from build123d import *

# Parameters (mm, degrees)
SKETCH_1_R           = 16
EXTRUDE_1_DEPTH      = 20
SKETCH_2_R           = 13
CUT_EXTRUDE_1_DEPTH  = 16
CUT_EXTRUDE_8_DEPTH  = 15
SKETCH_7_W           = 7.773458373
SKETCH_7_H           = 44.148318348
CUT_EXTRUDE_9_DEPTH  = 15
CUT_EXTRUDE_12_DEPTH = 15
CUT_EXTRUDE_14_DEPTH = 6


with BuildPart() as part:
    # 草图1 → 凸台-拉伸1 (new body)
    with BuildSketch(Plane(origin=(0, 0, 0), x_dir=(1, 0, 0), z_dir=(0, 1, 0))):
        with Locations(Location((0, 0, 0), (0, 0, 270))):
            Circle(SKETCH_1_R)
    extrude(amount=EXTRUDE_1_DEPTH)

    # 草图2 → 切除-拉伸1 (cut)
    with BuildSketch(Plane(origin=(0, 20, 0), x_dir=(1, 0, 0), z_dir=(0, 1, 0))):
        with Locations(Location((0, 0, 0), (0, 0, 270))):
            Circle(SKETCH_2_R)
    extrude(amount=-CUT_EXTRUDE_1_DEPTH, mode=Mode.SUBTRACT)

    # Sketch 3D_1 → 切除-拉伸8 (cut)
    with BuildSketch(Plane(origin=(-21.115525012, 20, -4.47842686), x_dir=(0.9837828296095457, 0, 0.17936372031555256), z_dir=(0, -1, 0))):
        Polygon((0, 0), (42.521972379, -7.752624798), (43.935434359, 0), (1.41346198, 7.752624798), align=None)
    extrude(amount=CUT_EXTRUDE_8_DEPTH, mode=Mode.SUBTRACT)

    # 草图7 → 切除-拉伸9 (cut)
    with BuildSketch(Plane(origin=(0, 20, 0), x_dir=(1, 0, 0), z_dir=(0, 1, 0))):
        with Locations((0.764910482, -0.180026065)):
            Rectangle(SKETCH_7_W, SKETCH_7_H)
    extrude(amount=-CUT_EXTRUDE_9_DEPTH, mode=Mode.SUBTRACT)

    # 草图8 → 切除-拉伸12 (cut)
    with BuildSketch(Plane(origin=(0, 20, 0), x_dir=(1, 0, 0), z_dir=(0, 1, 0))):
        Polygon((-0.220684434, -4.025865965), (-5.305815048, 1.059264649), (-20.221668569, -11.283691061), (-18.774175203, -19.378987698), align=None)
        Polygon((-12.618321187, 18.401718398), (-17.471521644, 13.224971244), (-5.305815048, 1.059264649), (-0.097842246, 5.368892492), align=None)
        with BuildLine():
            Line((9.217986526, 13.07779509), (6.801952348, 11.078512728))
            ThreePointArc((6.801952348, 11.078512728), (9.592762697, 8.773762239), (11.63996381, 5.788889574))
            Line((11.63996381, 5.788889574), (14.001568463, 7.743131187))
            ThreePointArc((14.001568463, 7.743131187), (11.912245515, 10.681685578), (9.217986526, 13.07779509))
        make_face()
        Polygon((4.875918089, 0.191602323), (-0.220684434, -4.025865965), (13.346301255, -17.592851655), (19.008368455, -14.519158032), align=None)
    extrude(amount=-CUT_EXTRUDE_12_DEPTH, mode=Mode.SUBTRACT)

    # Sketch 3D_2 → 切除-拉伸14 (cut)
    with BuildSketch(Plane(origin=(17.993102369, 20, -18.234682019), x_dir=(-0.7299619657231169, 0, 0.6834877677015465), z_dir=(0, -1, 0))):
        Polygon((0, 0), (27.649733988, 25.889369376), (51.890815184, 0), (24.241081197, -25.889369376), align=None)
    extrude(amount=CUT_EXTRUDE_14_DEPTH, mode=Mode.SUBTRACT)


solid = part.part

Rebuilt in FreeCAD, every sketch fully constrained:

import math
import FreeCAD as App
import Part
import Sketcher

V = App.Vector


def add_polygon(sketch, points):
    """Adds a closed chain of lines whose ends are joined by coincident constraints."""
    first, n = sketch.GeometryCount, len(points)
    for a, b in zip(points, points[1:] + points[:1]):
        sketch.addGeometry(Part.LineSegment(App.Vector(*a, 0), App.Vector(*b, 0)), False)
    for i in range(n):
        sketch.addConstraint(Sketcher.Constraint("Coincident", first + i, 2, first + (i + 1) % n, 1))

doc = App.newDocument("Part")
body = doc.addObject("PartDesign::Body", "Body")

# Sketch on XZ plane
sketch1 = doc.addObject("Sketcher::SketchObject", "Sketch")
body.addObject(sketch1)
sketch1.AttachmentSupport = (doc.XZ_Plane, [""])
sketch1.MapMode = "FlatFace"
sketch1.addGeometry(Part.Circle(V(0, 0, 0), V(0, 0, 1), 16), False)
sketch1.addConstraint(Sketcher.Constraint("Coincident", 0, 3, -1, 1))
sketch1.addConstraint(Sketcher.Constraint("Diameter", 0, 32.0))
pad1 = doc.addObject("PartDesign::Pad", "Pad")
body.addObject(pad1)
pad1.Profile = sketch1
pad1.Length = 20
pad1.Reversed = True

# Sketch on XZ plane
sketch2 = doc.addObject("Sketcher::SketchObject", "Sketch001")
body.addObject(sketch2)
sketch2.AttachmentSupport = (doc.XZ_Plane, [""])
sketch2.MapMode = "FlatFace"
sketch2.AttachmentOffset = App.Placement(V(0, 0, -20), App.Rotation())
sketch2.addGeometry(Part.Circle(V(0, 0, 0), V(0, 0, 1), 13), False)
sketch2.addConstraint(Sketcher.Constraint("Coincident", 0, 3, -1, 1))
sketch2.addConstraint(Sketcher.Constraint("Diameter", 0, 26.0))
pocket1 = doc.addObject("PartDesign::Pocket", "Pocket")
body.addObject(pocket1)
pocket1.Profile = sketch2
pocket1.Length = 16
pocket1.Reversed = True

# Sketch on XZ plane
sketch3 = doc.addObject("Sketcher::SketchObject", "Sketch002")
body.addObject(sketch3)
sketch3.AttachmentSupport = (doc.XZ_Plane, [""])
sketch3.MapMode = "FlatFace"
sketch3.AttachmentOffset = App.Placement(V(0, 0, -20), App.Rotation())
add_polygon(sketch3, [(-21, -4), (22, -4), (22, 3), (-21, 3)])  # lines 0-3
sketch3.addConstraint(Sketcher.Constraint("Horizontal", 0))
sketch3.addConstraint(Sketcher.Constraint("Vertical", 1))
sketch3.addConstraint(Sketcher.Constraint("Horizontal", 2))
sketch3.addConstraint(Sketcher.Constraint("Vertical", 3))
sketch3.addConstraint(Sketcher.Constraint("DistanceX", -1, 1, 0, 2, 22.107401))
sketch3.addConstraint(Sketcher.Constraint("DistanceX", 0, 1, 0, 2, 43.222926))
sketch3.addConstraint(Sketcher.Constraint("DistanceY", 1, 1, 1, 2, 7.880423))
sketch3.addConstraint(Sketcher.Constraint("DistanceY", 0, 2, -1, 1, 4.478427))
pocket2 = doc.addObject("PartDesign::Pocket", "Pocket001")
body.addObject(pocket2)
pocket2.Profile = sketch3
pocket2.Length = 15
pocket2.Reversed = True

# Sketch on XZ plane
sketch4 = doc.addObject("Sketcher::SketchObject", "Sketch003")
body.addObject(sketch4)
sketch4.AttachmentSupport = (doc.XZ_Plane, [""])
sketch4.MapMode = "FlatFace"
sketch4.AttachmentOffset = App.Placement(V(0, 0, -20), App.Rotation())
add_polygon(sketch4, [(-3, -22), (-3, 22), (5, 22), (5, -22)])  # lines 0-3
sketch4.addConstraint(Sketcher.Constraint("Vertical", 0))
sketch4.addConstraint(Sketcher.Constraint("Horizontal", 1))
sketch4.addConstraint(Sketcher.Constraint("Vertical", 2))
sketch4.addConstraint(Sketcher.Constraint("Horizontal", 3))
sketch4.addConstraint(Sketcher.Constraint("DistanceX", 1, 1, 1, 2, 7.773458))
sketch4.addConstraint(Sketcher.Constraint("DistanceY", 0, 1, 0, 2, 44.148318))
sketch4.addConstraint(Sketcher.Constraint("DistanceX", 0, 2, -1, 1, 3.121819))
sketch4.addConstraint(Sketcher.Constraint("DistanceY", -1, 1, 0, 2, 22.254185))
pocket3 = doc.addObject("PartDesign::Pocket", "Pocket002")
body.addObject(pocket3)
pocket3.Profile = sketch4
pocket3.Length = 15
pocket3.Reversed = True

# Sketch on XZ plane
sketch5 = doc.addObject("Sketcher::SketchObject", "Sketch004")
body.addObject(sketch5)
sketch5.AttachmentSupport = (doc.XZ_Plane, [""])
sketch5.MapMode = "FlatFace"
sketch5.AttachmentOffset = App.Placement(V(0, 0, -20), App.Rotation())
add_polygon(sketch5, [(-0.220684, 4.025866), (-5.305815, -1.059265), (-20.221669, 11.283691), (-18.774175, 19.378988)])  # lines 0-3
add_polygon(sketch5, [(-12.618321, -18.401718), (-17.471522, -13.224971), (-5.305815, -1.059265), (-0.097842, -5.368892)])  # lines 4-7
sketch5.addGeometry(Part.LineSegment(V(9.217987, -13.077795, 0), V(6.801952, -11.078513, 0)), False)  # 8
sketch5.addGeometry(Part.ArcOfCircle(Part.Circle(V(0, 0, 0), V(0, 0, 1), 13), math.radians(-58.451031), math.radians(-26.442483)), False)  # 9
sketch5.addGeometry(Part.LineSegment(V(11.639964, -5.78889, 0), V(14.001568, -7.743131, 0)), False)  # 10
sketch5.addGeometry(Part.ArcOfCircle(Part.Circle(V(0, 0, 0), V(0, 0, 1), 16), math.radians(-54.821604), math.radians(-28.943421)), False)  # 11
add_polygon(sketch5, [(4.875918, -0.191602), (-0.220684, 4.025866), (13.346301, 17.592852), (19.008368, 14.519158)])  # lines 12-15
sketch5.addConstraint(Sketcher.Constraint("Coincident", 8, 2, 9, 1))
sketch5.addConstraint(Sketcher.Constraint("Coincident", 9, 2, 10, 1))
sketch5.addConstraint(Sketcher.Constraint("Coincident", 10, 2, 11, 2))
sketch5.addConstraint(Sketcher.Constraint("Coincident", 11, 1, 8, 1))
sketch5.addConstraint(Sketcher.Constraint("Coincident", 9, 3, -1, 1))
sketch5.addConstraint(Sketcher.Constraint("Coincident", 11, 3, -1, 1))
sketch5.addConstraint(Sketcher.Constraint("Coincident", 5, 2, 0, 2))
sketch5.addConstraint(Sketcher.Constraint("Coincident", 12, 2, 3, 2))
sketch5.addConstraint(Sketcher.Constraint("Radius", 9, 13.0))
sketch5.addConstraint(Sketcher.Constraint("Radius", 11, 16.0))
sketch5.addConstraint(Sketcher.Constraint("DistanceX", -1, 1, 13, 2, 13.346301))
sketch5.addConstraint(Sketcher.Constraint("DistanceX", 4, 2, 7, 2, 4.8532))
sketch5.addConstraint(Sketcher.Constraint("DistanceX", 10, 2, 14, 2, 5.0068))
sketch5.addConstraint(Sketcher.Constraint("Distance", 0, 7.191461))
sketch5.addConstraint(Sketcher.Constraint("Distance", 1, 19.360559))
sketch5.addConstraint(Sketcher.Constraint("Distance", 2, 8.223689))
sketch5.addConstraint(Sketcher.Constraint("Distance", 3, 24.082159))
sketch5.addConstraint(Sketcher.Constraint("Distance", 10, 3.065328))
sketch5.addConstraint(Sketcher.Constraint("Distance", 14, 6.442561))
sketch5.addConstraint(Sketcher.Constraint("Distance", 15, 20.399329))
sketch5.addConstraint(Sketcher.Constraint("DistanceX", 1, 2, -1, 1, 20.221669))
sketch5.addConstraint(Sketcher.Constraint("DistanceY", -1, 1, 1, 2, 11.283691))
sketch5.addConstraint(Sketcher.Constraint("DistanceX", 4, 2, -1, 1, 17.471522))
sketch5.addConstraint(Sketcher.Constraint("DistanceY", 4, 2, -1, 1, 13.224971))
sketch5.addConstraint(Sketcher.Constraint("DistanceY", 7, 2, -1, 1, 18.401718))
sketch5.addConstraint(Sketcher.Constraint("DistanceY", 9, 2, -1, 1, 5.78889))
sketch5.addConstraint(Sketcher.Constraint("DistanceY", -1, 1, 13, 2, 17.592852))
sketch5.addConstraint(Sketcher.Constraint("DistanceX", -1, 1, 15, 2, 4.875918))
sketch5.addConstraint(Sketcher.Constraint("DistanceX", 2, 2, 0, 2, 13.46836))
sketch5.addConstraint(Sketcher.Constraint("DistanceX", 0, 2, 3, 2, 5.085131))
sketch5.addConstraint(Sketcher.Constraint("DistanceY", 6, 2, 3, 2, 9.394758))
sketch5.addConstraint(Sketcher.Constraint("DistanceX", 7, 2, 6, 2, 12.520479))
sketch5.addConstraint(Sketcher.Constraint("DistanceY", 8, 2, 6, 2, 5.70962))
sketch5.addConstraint(Sketcher.Constraint("DistanceX", 11, 1, 10, 2, 4.783582))
pocket4 = doc.addObject("PartDesign::Pocket", "Pocket003")
body.addObject(pocket4)
pocket4.Profile = sketch5
pocket4.Length = 15
pocket4.Reversed = True

# Sketch on XZ plane
sketch6 = doc.addObject("Sketcher::SketchObject", "Sketch005")
body.addObject(sketch6)
sketch6.AttachmentSupport = (doc.XZ_Plane, [""])
sketch6.MapMode = "FlatFace"
sketch6.AttachmentOffset = App.Placement(V(0, 0, -20), App.Rotation())
add_polygon(sketch6, [(-20, -18), (18, -18), (18, 17), (-20, 17)])  # lines 0-3
sketch6.addConstraint(Sketcher.Constraint("Horizontal", 0))
sketch6.addConstraint(Sketcher.Constraint("Vertical", 1))
sketch6.addConstraint(Sketcher.Constraint("Horizontal", 2))
sketch6.addConstraint(Sketcher.Constraint("Vertical", 3))
sketch6.addConstraint(Sketcher.Constraint("DistanceX", 0, 1, 0, 2, 37.878321))
sketch6.addConstraint(Sketcher.Constraint("DistanceY", 1, 1, 1, 2, 35.466737))
sketch6.addConstraint(Sketcher.Constraint("DistanceX", 2, 2, -1, 1, 19.885219))
sketch6.addConstraint(Sketcher.Constraint("DistanceY", 0, 2, -1, 1, 18.234682))
pocket5 = doc.addObject("PartDesign::Pocket", "Pocket004")
body.addObject(pocket5)
pocket5.Profile = sketch6
pocket5.Length = 6
pocket5.Reversed = True

doc.recompute()
